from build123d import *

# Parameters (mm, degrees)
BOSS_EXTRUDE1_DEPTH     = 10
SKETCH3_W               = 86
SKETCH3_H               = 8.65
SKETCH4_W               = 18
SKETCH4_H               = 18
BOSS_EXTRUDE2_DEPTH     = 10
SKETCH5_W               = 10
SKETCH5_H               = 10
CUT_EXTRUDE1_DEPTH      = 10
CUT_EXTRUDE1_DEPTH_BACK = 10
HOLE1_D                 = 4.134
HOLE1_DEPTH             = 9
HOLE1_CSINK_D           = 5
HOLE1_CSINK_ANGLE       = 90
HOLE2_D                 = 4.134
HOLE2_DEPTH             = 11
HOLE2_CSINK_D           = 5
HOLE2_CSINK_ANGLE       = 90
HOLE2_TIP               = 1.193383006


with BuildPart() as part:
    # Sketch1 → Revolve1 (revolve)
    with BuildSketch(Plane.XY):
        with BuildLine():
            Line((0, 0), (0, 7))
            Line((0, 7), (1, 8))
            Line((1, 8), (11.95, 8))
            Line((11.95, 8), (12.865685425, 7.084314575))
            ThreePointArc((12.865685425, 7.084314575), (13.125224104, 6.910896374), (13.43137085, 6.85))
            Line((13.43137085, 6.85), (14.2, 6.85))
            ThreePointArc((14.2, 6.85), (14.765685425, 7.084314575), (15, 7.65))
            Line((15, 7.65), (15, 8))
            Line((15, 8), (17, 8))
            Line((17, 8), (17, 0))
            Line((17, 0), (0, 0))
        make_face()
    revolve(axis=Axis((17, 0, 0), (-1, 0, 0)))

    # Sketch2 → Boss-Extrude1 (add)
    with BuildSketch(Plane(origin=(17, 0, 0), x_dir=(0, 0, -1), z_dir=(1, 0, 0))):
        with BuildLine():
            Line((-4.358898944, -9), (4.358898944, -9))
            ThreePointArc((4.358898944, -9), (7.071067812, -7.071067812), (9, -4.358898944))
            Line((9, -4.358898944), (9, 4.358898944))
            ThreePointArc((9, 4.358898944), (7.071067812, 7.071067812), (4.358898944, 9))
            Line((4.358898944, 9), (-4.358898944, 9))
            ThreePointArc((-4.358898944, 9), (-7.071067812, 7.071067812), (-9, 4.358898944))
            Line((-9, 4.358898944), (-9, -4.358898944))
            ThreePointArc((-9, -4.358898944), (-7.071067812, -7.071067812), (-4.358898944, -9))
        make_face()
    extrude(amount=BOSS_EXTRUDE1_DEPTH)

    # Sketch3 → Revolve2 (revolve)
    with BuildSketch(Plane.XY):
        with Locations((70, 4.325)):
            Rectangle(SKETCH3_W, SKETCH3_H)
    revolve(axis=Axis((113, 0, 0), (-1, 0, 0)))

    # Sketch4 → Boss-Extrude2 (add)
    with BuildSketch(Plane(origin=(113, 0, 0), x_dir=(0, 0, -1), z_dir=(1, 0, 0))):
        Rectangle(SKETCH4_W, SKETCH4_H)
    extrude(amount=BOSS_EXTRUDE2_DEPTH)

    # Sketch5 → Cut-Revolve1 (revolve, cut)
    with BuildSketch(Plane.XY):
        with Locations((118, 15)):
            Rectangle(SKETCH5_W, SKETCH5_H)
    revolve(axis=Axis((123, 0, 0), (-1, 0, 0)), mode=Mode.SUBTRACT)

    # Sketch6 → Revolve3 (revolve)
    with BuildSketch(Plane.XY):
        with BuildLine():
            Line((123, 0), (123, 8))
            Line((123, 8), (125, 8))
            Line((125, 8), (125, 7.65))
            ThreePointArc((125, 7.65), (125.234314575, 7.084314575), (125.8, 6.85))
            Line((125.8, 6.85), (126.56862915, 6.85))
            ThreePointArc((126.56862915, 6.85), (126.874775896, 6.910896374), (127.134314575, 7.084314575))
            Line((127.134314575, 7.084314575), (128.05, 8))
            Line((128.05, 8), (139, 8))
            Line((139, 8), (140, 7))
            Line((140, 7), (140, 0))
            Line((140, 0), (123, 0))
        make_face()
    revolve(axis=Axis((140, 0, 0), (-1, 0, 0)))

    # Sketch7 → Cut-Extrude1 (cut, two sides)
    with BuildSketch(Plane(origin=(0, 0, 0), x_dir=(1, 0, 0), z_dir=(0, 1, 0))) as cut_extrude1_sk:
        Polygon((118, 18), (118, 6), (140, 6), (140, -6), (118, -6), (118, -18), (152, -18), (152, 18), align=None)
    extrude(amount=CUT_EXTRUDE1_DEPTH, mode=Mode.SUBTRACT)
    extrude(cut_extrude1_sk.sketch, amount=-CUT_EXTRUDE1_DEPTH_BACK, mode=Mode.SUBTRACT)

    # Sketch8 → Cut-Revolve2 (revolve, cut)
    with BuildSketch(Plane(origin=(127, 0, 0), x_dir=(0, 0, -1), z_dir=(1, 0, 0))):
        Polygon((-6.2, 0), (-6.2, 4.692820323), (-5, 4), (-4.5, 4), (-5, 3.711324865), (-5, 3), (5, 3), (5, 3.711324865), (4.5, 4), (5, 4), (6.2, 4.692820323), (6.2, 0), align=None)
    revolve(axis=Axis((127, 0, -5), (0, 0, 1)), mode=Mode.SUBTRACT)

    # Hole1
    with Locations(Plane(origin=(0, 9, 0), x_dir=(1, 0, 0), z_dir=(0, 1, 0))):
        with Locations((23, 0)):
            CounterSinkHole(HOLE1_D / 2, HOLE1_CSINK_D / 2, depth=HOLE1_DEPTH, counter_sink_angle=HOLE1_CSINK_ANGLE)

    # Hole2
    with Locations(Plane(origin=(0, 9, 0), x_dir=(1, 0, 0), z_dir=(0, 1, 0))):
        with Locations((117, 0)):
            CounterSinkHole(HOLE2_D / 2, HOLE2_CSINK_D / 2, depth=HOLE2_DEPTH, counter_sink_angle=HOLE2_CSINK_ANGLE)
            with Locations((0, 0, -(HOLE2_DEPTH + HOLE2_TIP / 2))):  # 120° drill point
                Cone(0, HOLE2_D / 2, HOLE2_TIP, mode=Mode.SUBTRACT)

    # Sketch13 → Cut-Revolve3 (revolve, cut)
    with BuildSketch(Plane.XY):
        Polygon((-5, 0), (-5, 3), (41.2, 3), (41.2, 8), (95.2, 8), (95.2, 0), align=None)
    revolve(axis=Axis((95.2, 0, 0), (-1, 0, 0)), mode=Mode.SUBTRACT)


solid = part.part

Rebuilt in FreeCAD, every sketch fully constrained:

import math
import FreeCAD as App
import Part
import Sketcher
from FreeCAD import Vector
Q = App.Units.Quantity


def add_polygon(sketch, points):
    """Adds a closed chain of lines whose ends are joined by coincident constraints."""
    first, n = sketch.GeometryCount, len(points)
    for a, b in zip(points, points[1:] + points[:1]):
        sketch.addGeometry(Part.LineSegment(App.Vector(*a, 0), App.Vector(*b, 0)), False)
    for i in range(n):
        sketch.addConstraint(Sketcher.Constraint("Coincident", first + i, 2, first + (i + 1) % n, 1))

doc = App.newDocument("Part")
body = doc.addObject("PartDesign::Body", "Body")

sketch1 = body.newObject("Sketcher::SketchObject", "Sketch")
sketch1.AttachmentSupport = (doc.getObject("XY_Plane"), [""])
sketch1.MapMode = "FlatFace"
sketch1.addGeometry(Part.LineSegment(Vector(0, 7, 0), Vector(0, 0, 0)), False)
sketch1.addGeometry(Part.LineSegment(Vector(0, 0, 0), Vector(17, 0, 0)), False)
sketch1.addGeometry(Part.LineSegment(Vector(17, 0, 0), Vector(17, 8, 0)), False)
sketch1.addGeometry(Part.LineSegment(Vector(17, 8, 0), Vector(15, 8, 0)), False)
sketch1.addGeometry(Part.LineSegment(Vector(15, 8, 0), Vector(15, 7.65, 0)), False)
sketch1.addGeometry(Part.ArcOfCircle(Part.Circle(Vector(14.2, 7.65, 0), Vector(0, 0, 1), 0.8), math.radians(-90), math.radians(0)), False)
sketch1.addGeometry(Part.LineSegment(Vector(14.2, 6.85, 0), Vector(13.43, 6.85, 0)), False)
sketch1.addGeometry(Part.ArcOfCircle(Part.Circle(Vector(13.43, 7.65, 0), Vector(0, 0, 1), 0.8), math.radians(-135), math.radians(-90)), False)
sketch1.addGeometry(Part.LineSegment(Vector(12.87, 7.08, 0), Vector(11.95, 8, 0)), False)
sketch1.addGeometry(Part.LineSegment(Vector(11.95, 8, 0), Vector(1, 8, 0)), False)
sketch1.addGeometry(Part.LineSegment(Vector(1, 8, 0), Vector(0, 7, 0)), False)
sketch1.addConstraint(Sketcher.Constraint("Coincident", 0, 2, 1, 1))
sketch1.addConstraint(Sketcher.Constraint("Coincident", 1, 2, 2, 1))
sketch1.addConstraint(Sketcher.Constraint("Coincident", 2, 2, 3, 1))
sketch1.addConstraint(Sketcher.Constraint("Coincident", 3, 2, 4, 1))
sketch1.addConstraint(Sketcher.Constraint("Tangent", 4, 2, 5, 2))
sketch1.addConstraint(Sketcher.Constraint("Tangent", 5, 1, 6, 1))
sketch1.addConstraint(Sketcher.Constraint("Tangent", 6, 2, 7, 2))
sketch1.addConstraint(Sketcher.Constraint("Tangent", 7, 1, 8, 1))
sketch1.addConstraint(Sketcher.Constraint("Coincident", 8, 2, 9, 1))
sketch1.addConstraint(Sketcher.Constraint("Coincident", 9, 2, 10, 1))
sketch1.addConstraint(Sketcher.Constraint("Coincident", 10, 2, 0, 1))
sketch1.addConstraint(Sketcher.Constraint("Vertical", 0))
sketch1.addConstraint(Sketcher.Constraint("Horizontal", 1))
sketch1.addConstraint(Sketcher.Constraint("Vertical", 2))
sketch1.addConstraint(Sketcher.Constraint("Horizontal", 3))
sketch1.addConstraint(Sketcher.Constraint("Vertical", 4))
sketch1.addConstraint(Sketcher.Constraint("Horizontal", 6))
sketch1.addConstraint(Sketcher.Constraint("Horizontal", 9))
sketch1.addConstraint(Sketcher.Constraint("Coincident", 0, 2, -1, 1))
sketch1.addConstraint(Sketcher.Constraint("Equal", 5, 7))
sketch1.addConstraint(Sketcher.Constraint("Perpendicular", 8, 10))
sketch1.addConstraint(Sketcher.Constraint("Horizontal", 3, 2, 8, 2))
sketch1.addConstraint(Sketcher.Constraint("Radius", 5, Q("0.8 mm")))
sketch1.addConstraint(Sketcher.Constraint("DistanceX", 1, 1, 1, 2, Q("17 mm")))
sketch1.addConstraint(Sketcher.Constraint("DistanceX", 3, 2, 3, 1, Q("2 mm")))
sketch1.addConstraint(Sketcher.Constraint("DistanceY", 0, 2, 0, 1, Q("7 mm")))
sketch1.addConstraint(Sketcher.Constraint("DistanceY", 2, 1, 2, 2, Q("8 mm")))
sketch1.addConstraint(Sketcher.Constraint("Angle", 8, Q("135 deg")))
sketch1.addConstraint(Sketcher.Constraint("DistanceX", 9, 2, 9, 1, Q("10.95 mm")))
sketch1.addConstraint(Sketcher.Constraint("DistanceY", 4, 2, 4, 1, Q("0.35 mm")))
revolution = body.newObject("PartDesign::Revolution", "Revolution")
revolution.Profile = sketch1
revolution.ReferenceAxis = (sketch1, ["H_Axis"])
revolution.Angle = 360

sketch2 = body.newObject("Sketcher::SketchObject", "Sketch001")
sketch2.AttachmentSupport = (doc.getObject("YZ_Plane"), [""])
sketch2.MapMode = "FlatFace"
sketch2.AttachmentOffset = App.Placement(Vector(0, 0, 17), App.Rotation())
sketch2.addGeometry(Part.LineSegment(Vector(-9, 4, 0), Vector(-9, -4, 0)), False)
sketch2.addGeometry(Part.ArcOfCircle(Part.Circle(Vector(0, 0, 0), Vector(0, 0, 1), 10), math.radians(-154), math.radians(-116)), False)
sketch2.addGeometry(Part.LineSegment(Vector(-4, -9, 0), Vector(4, -9, 0)), False)
sketch2.addGeometry(Part.ArcOfCircle(Part.Circle(Vector(0, 0, 0), Vector(0, 0, 1), 10), math.radians(-64), math.radians(-26)), False)
sketch2.addGeometry(Part.LineSegment(Vector(9, -4, 0), Vector(9, 4, 0)), False)
sketch2.addGeometry(Part.ArcOfCircle(Part.Circle(Vector(0, 0, 0), Vector(0, 0, 1), 10), math.radians(26), math.radians(64)), False)
sketch2.addGeometry(Part.LineSegment(Vector(4, 9, 0), Vector(-4, 9, 0)), False)
sketch2.addGeometry(Part.ArcOfCircle(Part.Circle(Vector(0, 0, 0), Vector(0, 0, 1), 10), math.radians(116), math.radians(154)), False)
sketch2.addConstraint(Sketcher.Constraint("Coincident", 0, 2, 1, 1))
sketch2.addConstraint(Sketcher.Constraint("Coincident", 1, 2, 2, 1))
sketch2.addConstraint(Sketcher.Constraint("Coincident", 2, 2, 3, 1))
sketch2.addConstraint(Sketcher.Constraint("Coincident", 3, 2, 4, 1))
sketch2.addConstraint(Sketcher.Constraint("Coincident", 4, 2, 5, 1))
sketch2.addConstraint(Sketcher.Constraint("Coincident", 5, 2, 6, 1))
sketch2.addConstraint(Sketcher.Constraint("Coincident", 6, 2, 7, 1))
sketch2.addConstraint(Sketcher.Constraint("Coincident", 7, 2, 0, 1))
sketch2.addConstraint(Sketcher.Constraint("Vertical", 0))
sketch2.addConstraint(Sketcher.Constraint("Horizontal", 2))
sketch2.addConstraint(Sketcher.Constraint("Vertical", 4))
sketch2.addConstraint(Sketcher.Constraint("Horizontal", 6))
sketch2.addConstraint(Sketcher.Constraint("Coincident", 1, 3, -1, 1))
sketch2.addConstraint(Sketcher.Constraint("Coincident", 3, 3, -1, 1))
sketch2.addConstraint(Sketcher.Constraint("Coincident", 5, 3, -1, 1))
sketch2.addConstraint(Sketcher.Constraint("Coincident", 7, 3, -1, 1))
sketch2.addConstraint(Sketcher.Constraint("Equal", 1, 3))
sketch2.addConstraint(Sketcher.Constraint("Equal", 3, 5))
sketch2.addConstraint(Sketcher.Constraint("Equal", 5, 7))
sketch2.addConstraint(Sketcher.Constraint("Horizontal", 0, 2, 3, 2))
sketch2.addConstraint(Sketcher.Constraint("Vertical", 2, 2, 5, 2))
sketch2.addConstraint(Sketcher.Constraint("Equal", 6, 0))
sketch2.addConstraint(Sketcher.Constraint("Radius", 1, Q("10 mm")))
sketch2.addConstraint(Sketcher.Constraint("DistanceX", 0, 2, -1, 1, Q("9 mm")))
pad1 = body.newObject("PartDesign::Pad", "Pad")
pad1.Profile = sketch2
pad1.Length = 10

sketch3 = body.newObject("Sketcher::SketchObject", "Sketch002")
sketch3.AttachmentSupport = (doc.getObject("XY_Plane"), [""])
sketch3.MapMode = "FlatFace"
add_polygon(sketch3, [(27, 9), (27, 0), (113, 0), (113, 9)])
sketch3.addConstraint(Sketcher.Constraint("Vertical", 0))
sketch3.addConstraint(Sketcher.Constraint("Horizontal", 1))
sketch3.addConstraint(Sketcher.Constraint("Vertical", 2))
sketch3.addConstraint(Sketcher.Constraint("Horizontal", 3))
sketch3.addConstraint(Sketcher.Constraint("PointOnObject", 0, 2, -1))
sketch3.addConstraint(Sketcher.Constraint("DistanceX", 1, 1, 1, 2, Q("86 mm")))
sketch3.addConstraint(Sketcher.Constraint("DistanceX", -1, 1, 0, 2, Q("27 mm")))
sketch3.addConstraint(Sketcher.Constraint("DistanceY", 0, 2, 0, 1, Q("8.65 mm")))
revolution2 = body.newObject("PartDesign::Revolution", "Revolution001")
revolution2.Profile = sketch3
revolution2.ReferenceAxis = (sketch3, ["H_Axis"])
revolution2.Angle = 360

sketch4 = body.newObject("Sketcher::SketchObject", "Sketch003")
sketch4.AttachmentSupport = (doc.getObject("YZ_Plane"), [""])
sketch4.MapMode = "FlatFace"
sketch4.AttachmentOffset = App.Placement(Vector(0, 0, 113), App.Rotation())
add_polygon(sketch4, [(9, 9), (-9, 9), (-9, -9), (9, -9)])
sketch4.addConstraint(Sketcher.Constraint("Horizontal", 0))
sketch4.addConstraint(Sketcher.Constraint("Vertical", 1))
sketch4.addConstraint(Sketcher.Constraint("Horizontal", 2))
sketch4.addConstraint(Sketcher.Constraint("Vertical", 3))
sketch4.addConstraint(Sketcher.Constraint("Symmetric", 0, 2, 2, 2, -1, 1))
sketch4.addConstraint(Sketcher.Constraint("Equal", 2, 1))
sketch4.addConstraint(Sketcher.Constraint("DistanceX", 0, 2, 0, 1, Q("18 mm")))
pad2 = body.newObject("PartDesign::Pad", "Pad001")
pad2.Profile = sketch4
pad2.Length = 10

sketch5 = body.newObject("Sketcher::SketchObject", "Sketch004")
sketch5.AttachmentSupport = (doc.getObject("XY_Plane"), [""])
sketch5.MapMode = "FlatFace"
add_polygon(sketch5, [(113, 20), (113, 10), (123, 10), (123, 20)])
sketch5.addConstraint(Sketcher.Constraint("Vertical", 0))
sketch5.addConstraint(Sketcher.Constraint("Horizontal", 1))
sketch5.addConstraint(Sketcher.Constraint("Vertical", 2))
sketch5.addConstraint(Sketcher.Constraint("Horizontal", 3))
sketch5.addConstraint(Sketcher.Constraint("Equal", 3, 0))
sketch5.addConstraint(Sketcher.Constraint("DistanceX", 1, 1, 1, 2, Q("10 mm")))
sketch5.addConstraint(Sketcher.Constraint("DistanceX", -1, 1, 0, 2, Q("113 mm")))
sketch5.addConstraint(Sketcher.Constraint("DistanceY", -1, 1, 0, 2, Q("10 mm")))
groove = body.newObject("PartDesign::Groove", "Groove")
groove.Profile = sketch5
groove.ReferenceAxis = (sketch5, ["H_Axis"])
groove.Angle = 360

sketch6 = body.newObject("Sketcher::SketchObject", "Sketch005")
sketch6.AttachmentSupport = (doc.getObject("XY_Plane"), [""])
sketch6.MapMode = "FlatFace"
sketch6.addGeometry(Part.LineSegment(Vector(123, 8, 0), Vector(123, 0, 0)), False)
sketch6.addGeometry(Part.LineSegment(Vector(123, 0, 0), Vector(140, 0, 0)), False)
sketch6.addGeometry(Part.LineSegment(Vector(140, 0, 0), Vector(140, 7, 0)), False)
sketch6.addGeometry(Part.LineSegment(Vector(140, 7, 0), Vector(139, 8, 0)), False)
sketch6.addGeometry(Part.LineSegment(Vector(139, 8, 0), Vector(128.05, 8, 0)), False)
sketch6.addGeometry(Part.LineSegment(Vector(128.05, 8, 0), Vector(127.13, 7.08, 0)), False)
sketch6.addGeometry(Part.ArcOfCircle(Part.Circle(Vector(126.57, 7.65, 0), Vector(0, 0, 1), 0.8), math.radians(-90), math.radians(-45)), False)
sketch6.addGeometry(Part.LineSegment(Vector(126.57, 6.85, 0), Vector(125.8, 6.85, 0)), False)
sketch6.addGeometry(Part.ArcOfCircle(Part.Circle(Vector(125.8, 7.65, 0), Vector(0, 0, 1), 0.8), math.radians(180), math.radians(270)), False)
sketch6.addGeometry(Part.LineSegment(Vector(125, 7.65, 0), Vector(125, 8, 0)), False)
sketch6.addGeometry(Part.LineSegment(Vector(125, 8, 0), Vector(123, 8, 0)), False)
sketch6.addConstraint(Sketcher.Constraint("Coincident", 0, 2, 1, 1))
sketch6.addConstraint(Sketcher.Constraint("Coincident", 1, 2, 2, 1))
sketch6.addConstraint(Sketcher.Constraint("Coincident", 2, 2, 3, 1))
sketch6.addConstraint(Sketcher.Constraint("Coincident", 3, 2, 4, 1))
sketch6.addConstraint(Sketcher.Constraint("Coincident", 4, 2, 5, 1))
sketch6.addConstraint(Sketcher.Constraint("Tangent", 5, 2, 6, 2))
sketch6.addConstraint(Sketcher.Constraint("Tangent", 6, 1, 7, 1))
sketch6.addConstraint(Sketcher.Constraint("Tangent", 7, 2, 8, 2))
sketch6.addConstraint(Sketcher.Constraint("Tangent", 8, 1, 9, 1))
sketch6.addConstraint(Sketcher.Constraint("Coincident", 9, 2, 10, 1))
sketch6.addConstraint(Sketcher.Constraint("Coincident", 10, 2, 0, 1))
sketch6.addConstraint(Sketcher.Constraint("Vertical", 0))
sketch6.addConstraint(Sketcher.Constraint("Horizontal", 1))
sketch6.addConstraint(Sketcher.Constraint("Vertical", 2))
sketch6.addConstraint(Sketcher.Constraint("Horizontal", 4))
sketch6.addConstraint(Sketcher.Constraint("Horizontal", 7))
sketch6.addConstraint(Sketcher.Constraint("Vertical", 9))
sketch6.addConstraint(Sketcher.Constraint("Horizontal", 10))
sketch6.addConstraint(Sketcher.Constraint("Equal", 6, 8))
sketch6.addConstraint(Sketcher.Constraint("PointOnObject", 0, 2, -1))
sketch6.addConstraint(Sketcher.Constraint("Perpendicular", 3, 5))
sketch6.addConstraint(Sketcher.Constraint("Horizontal", 4, 2, 9, 2))
sketch6.addConstraint(Sketcher.Constraint("Radius", 6, Q("0.8 mm")))
sketch6.addConstraint(Sketcher.Constraint("DistanceX", 1, 1, 1, 2, Q("17 mm")))
sketch6.addConstraint(Sketcher.Constraint("DistanceX", 10, 2, 10, 1, Q("2 mm")))
sketch6.addConstraint(Sketcher.Constraint("DistanceY", 0, 2, 0, 1, Q("8 mm")))
sketch6.addConstraint(Sketcher.Constraint("DistanceY", 2, 1, 2, 2, Q("7 mm")))
sketch6.addConstraint(Sketcher.Constraint("Angle", 3, Q("135 deg")))
sketch6.addConstraint(Sketcher.Constraint("DistanceX", -1, 1, 0, 2, Q("123 mm")))
sketch6.addConstraint(Sketcher.Constraint("DistanceX", 4, 2, 4, 1, Q("10.95 mm")))
sketch6.addConstraint(Sketcher.Constraint("DistanceY", 9, 1, 9, 2, Q("0.35 mm")))
revolution3 = body.newObject("PartDesign::Revolution", "Revolution002")
revolution3.Profile = sketch6
revolution3.ReferenceAxis = (sketch6, ["H_Axis"])
revolution3.Angle = 360

sketch7 = body.newObject("Sketcher::SketchObject", "Sketch006")
sketch7.AttachmentSupport = (doc.getObject("XZ_Plane"), [""])
sketch7.MapMode = "FlatFace"
add_polygon(sketch7, [(118, -18), (118, -6), (140, -6), (140, 6), (118, 6), (118, 18), (152, 18), (152, -18)])
sketch7.addConstraint(Sketcher.Constraint("Vertical", 0))
sketch7.addConstraint(Sketcher.Constraint("Horizontal", 1))
sketch7.addConstraint(Sketcher.Constraint("Vertical", 2))
sketch7.addConstraint(Sketcher.Constraint("Horizontal", 3))
sketch7.addConstraint(Sketcher.Constraint("Vertical", 4))
sketch7.addConstraint(Sketcher.Constraint("Horizontal", 5))
sketch7.addConstraint(Sketcher.Constraint("Vertical", 6))
sketch7.addConstraint(Sketcher.Constraint("Horizontal", 7))
sketch7.addConstraint(Sketcher.Constraint("Symmetric", 0, 2, 3, 2, -1))
sketch7.addConstraint(Sketcher.Constraint("Equal", 0, 2))
sketch7.addConstraint(Sketcher.Constraint("Equal", 2, 4))
sketch7.addConstraint(Sketcher.Constraint("DistanceX", 1, 1, 1, 2, Q("22 mm")))
sketch7.addConstraint(Sketcher.Constraint("DistanceX", 5, 1, 5, 2, Q("34 mm")))
sketch7.addConstraint(Sketcher.Constraint("DistanceY", 0, 1, 0, 2, Q("12 mm")))
sketch7.addConstraint(Sketcher.Constraint("DistanceX", -1, 1, 0, 2, Q("118 mm")))
pocket1 = body.newObject("PartDesign::Pocket", "Pocket")
pocket1.Profile = sketch7
pocket1.Type = "ThroughAll"
pocket1.Midplane = True

sketch8 = body.newObject("Sketcher::SketchObject", "Sketch007")
sketch8.AttachmentSupport = (doc.getObject("YZ_Plane"), [""])
sketch8.MapMode = "FlatFace"
sketch8.AttachmentOffset = App.Placement(Vector(0, 0, 127), App.Rotation())
add_polygon(sketch8, [(4.7, 6.2), (0, 6.2), (0, -6.2), (4.7, -6.2), (4, -5), (4, -4.5), (3.7, -5), (3, -5), (3, 5), (3.7, 5), (4, 4.5), (4, 5)])
sketch8.addConstraint(Sketcher.Constraint("Horizontal", 0))
sketch8.addConstraint(Sketcher.Constraint("Vertical", 1))
sketch8.addConstraint(Sketcher.Constraint("Horizontal", 2))
sketch8.addConstraint(Sketcher.Constraint("Vertical", 4))
sketch8.addConstraint(Sketcher.Constraint("Horizontal", 6))
sketch8.addConstraint(Sketcher.Constraint("Vertical", 7))
sketch8.addConstraint(Sketcher.Constraint("Horizontal", 8))
sketch8.addConstraint(Sketcher.Constraint("Vertical", 10))
sketch8.addConstraint(Sketcher.Constraint("Symmetric", 0, 2, 1, 2, -1, 1))
sketch8.addConstraint(Sketcher.Constraint("Symmetric", 5, 2, 8, 2, -1))
sketch8.addConstraint(Sketcher.Constraint("Symmetric", 4, 2, 9, 2, -1))
sketch8.addConstraint(Sketcher.Constraint("Parallel", 3, 9))
sketch8.addConstraint(Sketcher.Constraint("Parallel", 5, 11))
sketch8.addConstraint(Sketcher.Constraint("Horizontal", 3, 2, 5, 2))
sketch8.addConstraint(Sketcher.Constraint("Horizontal", 8, 2, 10, 2))
sketch8.addConstraint(Sketcher.Constraint("DistanceY", 7, 1, 7, 2, Q("10 mm")))
sketch8.addConstraint(Sketcher.Constraint("Angle", 3, Q("120 deg")))
sketch8.addConstraint(Sketcher.Constraint("DistanceY", 1, 2, 1, 1, Q("12.4 mm")))
sketch8.addConstraint(Sketcher.Constraint("DistanceY", 4, 1, 4, 2, Q("0.5 mm")))
sketch8.addConstraint(Sketcher.Constraint("DistanceX", -1, 1, 3, 2, Q("4 mm")))
sketch8.addConstraint(Sketcher.Constraint("DistanceX", -1, 1, 6, 2, Q("3 mm")))
groove2 = body.newObject("PartDesign::Groove", "Groove001")
groove2.Profile = sketch8
groove2.ReferenceAxis = (sketch8, ["V_Axis"])
groove2.Angle = 360

sketch9 = body.newObject("Sketcher::SketchObject", "Sketch008")
sketch9.AttachmentSupport = (doc.getObject("XZ_Plane"), [""])
sketch9.MapMode = "FlatFace"
sketch9.AttachmentOffset = App.Placement(Vector(0, 0, -9), App.Rotation())
sketch9.addGeometry(Part.Circle(Vector(23, 0, 0), Vector(0, 0, 1), 2.1), False)
sketch9.addConstraint(Sketcher.Constraint("PointOnObject", 0, 3, -1))
sketch9.addConstraint(Sketcher.Constraint("Diameter", 0, Q("4.134 mm")))
sketch9.addConstraint(Sketcher.Constraint("DistanceX", -1, 1, 0, 3, Q("23 mm")))
doc.recompute()
hole = body.newObject("PartDesign::Hole", "Hole")
hole.Profile = sketch9
hole.ThreadType = "None"
hole.Diameter = 4.134
hole.DepthType = "Dimension"
hole.Depth = 9
hole.DrillPoint = "Flat"
hole.HoleCutType = "Countersink"
hole.HoleCutDiameter = 5
hole.HoleCutCountersinkAngle = 90
hole.Reversed = True

sketch10 = body.newObject("Sketcher::SketchObject", "Sketch009")
sketch10.AttachmentSupport = (doc.getObject("XZ_Plane"), [""])
sketch10.MapMode = "FlatFace"
sketch10.AttachmentOffset = App.Placement(Vector(0, 0, -9), App.Rotation())
sketch10.addGeometry(Part.Circle(Vector(117, 0, 0), Vector(0, 0, 1), 2.1), False)
sketch10.addConstraint(Sketcher.Constraint("PointOnObject", 0, 3, -1))
sketch10.addConstraint(Sketcher.Constraint("Diameter", 0, Q("4.134 mm")))
sketch10.addConstraint(Sketcher.Constraint("DistanceX", -1, 1, 0, 3, Q("117 mm")))
doc.recompute()
hole2 = body.newObject("PartDesign::Hole", "Hole001")
hole2.Profile = sketch10
hole2.ThreadType = "None"
hole2.Diameter = 4.134
hole2.DepthType = "Dimension"
hole2.Depth = 11
hole2.DrillPoint = "Angled"
hole2.DrillPointAngle = 120
hole2.HoleCutType = "Countersink"
hole2.HoleCutDiameter = 5
hole2.HoleCutCountersinkAngle = 90
hole2.Reversed = True

sketch11 = body.newObject("Sketcher::SketchObject", "Sketch010")
sketch11.AttachmentSupport = (doc.getObject("XY_Plane"), [""])
sketch11.MapMode = "FlatFace"
add_polygon(sketch11, [(-5, 3), (-5, 0), (95.2, 0), (95.2, 8), (41.2, 8), (41.2, 3)])
sketch11.addConstraint(Sketcher.Constraint("Vertical", 0))
sketch11.addConstraint(Sketcher.Constraint("Horizontal", 1))
sketch11.addConstraint(Sketcher.Constraint("Vertical", 2))
sketch11.addConstraint(Sketcher.Constraint("Horizontal", 3))
sketch11.addConstraint(Sketcher.Constraint("Vertical", 4))
sketch11.addConstraint(Sketcher.Constraint("Horizontal", 5))
sketch11.addConstraint(Sketcher.Constraint("PointOnObject", 0, 2, -1))
sketch11.addConstraint(Sketcher.Constraint("DistanceX", 3, 2, 3, 1, Q("54 mm")))
sketch11.addConstraint(Sketcher.Constraint("DistanceY", 0, 2, 0, 1, Q("3 mm")))
sketch11.addConstraint(Sketcher.Constraint("DistanceY", 2, 1, 2, 2, Q("8 mm")))
sketch11.addConstraint(Sketcher.Constraint("DistanceX", 1, 1, 1, 2, Q("100.2 mm")))
sketch11.addConstraint(Sketcher.Constraint("DistanceX", 0, 2, -1, 1, Q("5 mm")))
groove3 = body.newObject("PartDesign::Groove", "Groove002")
groove3.Profile = sketch11
groove3.ReferenceAxis = (sketch11, ["H_Axis"])
groove3.Angle = 360

doc.recompute()
